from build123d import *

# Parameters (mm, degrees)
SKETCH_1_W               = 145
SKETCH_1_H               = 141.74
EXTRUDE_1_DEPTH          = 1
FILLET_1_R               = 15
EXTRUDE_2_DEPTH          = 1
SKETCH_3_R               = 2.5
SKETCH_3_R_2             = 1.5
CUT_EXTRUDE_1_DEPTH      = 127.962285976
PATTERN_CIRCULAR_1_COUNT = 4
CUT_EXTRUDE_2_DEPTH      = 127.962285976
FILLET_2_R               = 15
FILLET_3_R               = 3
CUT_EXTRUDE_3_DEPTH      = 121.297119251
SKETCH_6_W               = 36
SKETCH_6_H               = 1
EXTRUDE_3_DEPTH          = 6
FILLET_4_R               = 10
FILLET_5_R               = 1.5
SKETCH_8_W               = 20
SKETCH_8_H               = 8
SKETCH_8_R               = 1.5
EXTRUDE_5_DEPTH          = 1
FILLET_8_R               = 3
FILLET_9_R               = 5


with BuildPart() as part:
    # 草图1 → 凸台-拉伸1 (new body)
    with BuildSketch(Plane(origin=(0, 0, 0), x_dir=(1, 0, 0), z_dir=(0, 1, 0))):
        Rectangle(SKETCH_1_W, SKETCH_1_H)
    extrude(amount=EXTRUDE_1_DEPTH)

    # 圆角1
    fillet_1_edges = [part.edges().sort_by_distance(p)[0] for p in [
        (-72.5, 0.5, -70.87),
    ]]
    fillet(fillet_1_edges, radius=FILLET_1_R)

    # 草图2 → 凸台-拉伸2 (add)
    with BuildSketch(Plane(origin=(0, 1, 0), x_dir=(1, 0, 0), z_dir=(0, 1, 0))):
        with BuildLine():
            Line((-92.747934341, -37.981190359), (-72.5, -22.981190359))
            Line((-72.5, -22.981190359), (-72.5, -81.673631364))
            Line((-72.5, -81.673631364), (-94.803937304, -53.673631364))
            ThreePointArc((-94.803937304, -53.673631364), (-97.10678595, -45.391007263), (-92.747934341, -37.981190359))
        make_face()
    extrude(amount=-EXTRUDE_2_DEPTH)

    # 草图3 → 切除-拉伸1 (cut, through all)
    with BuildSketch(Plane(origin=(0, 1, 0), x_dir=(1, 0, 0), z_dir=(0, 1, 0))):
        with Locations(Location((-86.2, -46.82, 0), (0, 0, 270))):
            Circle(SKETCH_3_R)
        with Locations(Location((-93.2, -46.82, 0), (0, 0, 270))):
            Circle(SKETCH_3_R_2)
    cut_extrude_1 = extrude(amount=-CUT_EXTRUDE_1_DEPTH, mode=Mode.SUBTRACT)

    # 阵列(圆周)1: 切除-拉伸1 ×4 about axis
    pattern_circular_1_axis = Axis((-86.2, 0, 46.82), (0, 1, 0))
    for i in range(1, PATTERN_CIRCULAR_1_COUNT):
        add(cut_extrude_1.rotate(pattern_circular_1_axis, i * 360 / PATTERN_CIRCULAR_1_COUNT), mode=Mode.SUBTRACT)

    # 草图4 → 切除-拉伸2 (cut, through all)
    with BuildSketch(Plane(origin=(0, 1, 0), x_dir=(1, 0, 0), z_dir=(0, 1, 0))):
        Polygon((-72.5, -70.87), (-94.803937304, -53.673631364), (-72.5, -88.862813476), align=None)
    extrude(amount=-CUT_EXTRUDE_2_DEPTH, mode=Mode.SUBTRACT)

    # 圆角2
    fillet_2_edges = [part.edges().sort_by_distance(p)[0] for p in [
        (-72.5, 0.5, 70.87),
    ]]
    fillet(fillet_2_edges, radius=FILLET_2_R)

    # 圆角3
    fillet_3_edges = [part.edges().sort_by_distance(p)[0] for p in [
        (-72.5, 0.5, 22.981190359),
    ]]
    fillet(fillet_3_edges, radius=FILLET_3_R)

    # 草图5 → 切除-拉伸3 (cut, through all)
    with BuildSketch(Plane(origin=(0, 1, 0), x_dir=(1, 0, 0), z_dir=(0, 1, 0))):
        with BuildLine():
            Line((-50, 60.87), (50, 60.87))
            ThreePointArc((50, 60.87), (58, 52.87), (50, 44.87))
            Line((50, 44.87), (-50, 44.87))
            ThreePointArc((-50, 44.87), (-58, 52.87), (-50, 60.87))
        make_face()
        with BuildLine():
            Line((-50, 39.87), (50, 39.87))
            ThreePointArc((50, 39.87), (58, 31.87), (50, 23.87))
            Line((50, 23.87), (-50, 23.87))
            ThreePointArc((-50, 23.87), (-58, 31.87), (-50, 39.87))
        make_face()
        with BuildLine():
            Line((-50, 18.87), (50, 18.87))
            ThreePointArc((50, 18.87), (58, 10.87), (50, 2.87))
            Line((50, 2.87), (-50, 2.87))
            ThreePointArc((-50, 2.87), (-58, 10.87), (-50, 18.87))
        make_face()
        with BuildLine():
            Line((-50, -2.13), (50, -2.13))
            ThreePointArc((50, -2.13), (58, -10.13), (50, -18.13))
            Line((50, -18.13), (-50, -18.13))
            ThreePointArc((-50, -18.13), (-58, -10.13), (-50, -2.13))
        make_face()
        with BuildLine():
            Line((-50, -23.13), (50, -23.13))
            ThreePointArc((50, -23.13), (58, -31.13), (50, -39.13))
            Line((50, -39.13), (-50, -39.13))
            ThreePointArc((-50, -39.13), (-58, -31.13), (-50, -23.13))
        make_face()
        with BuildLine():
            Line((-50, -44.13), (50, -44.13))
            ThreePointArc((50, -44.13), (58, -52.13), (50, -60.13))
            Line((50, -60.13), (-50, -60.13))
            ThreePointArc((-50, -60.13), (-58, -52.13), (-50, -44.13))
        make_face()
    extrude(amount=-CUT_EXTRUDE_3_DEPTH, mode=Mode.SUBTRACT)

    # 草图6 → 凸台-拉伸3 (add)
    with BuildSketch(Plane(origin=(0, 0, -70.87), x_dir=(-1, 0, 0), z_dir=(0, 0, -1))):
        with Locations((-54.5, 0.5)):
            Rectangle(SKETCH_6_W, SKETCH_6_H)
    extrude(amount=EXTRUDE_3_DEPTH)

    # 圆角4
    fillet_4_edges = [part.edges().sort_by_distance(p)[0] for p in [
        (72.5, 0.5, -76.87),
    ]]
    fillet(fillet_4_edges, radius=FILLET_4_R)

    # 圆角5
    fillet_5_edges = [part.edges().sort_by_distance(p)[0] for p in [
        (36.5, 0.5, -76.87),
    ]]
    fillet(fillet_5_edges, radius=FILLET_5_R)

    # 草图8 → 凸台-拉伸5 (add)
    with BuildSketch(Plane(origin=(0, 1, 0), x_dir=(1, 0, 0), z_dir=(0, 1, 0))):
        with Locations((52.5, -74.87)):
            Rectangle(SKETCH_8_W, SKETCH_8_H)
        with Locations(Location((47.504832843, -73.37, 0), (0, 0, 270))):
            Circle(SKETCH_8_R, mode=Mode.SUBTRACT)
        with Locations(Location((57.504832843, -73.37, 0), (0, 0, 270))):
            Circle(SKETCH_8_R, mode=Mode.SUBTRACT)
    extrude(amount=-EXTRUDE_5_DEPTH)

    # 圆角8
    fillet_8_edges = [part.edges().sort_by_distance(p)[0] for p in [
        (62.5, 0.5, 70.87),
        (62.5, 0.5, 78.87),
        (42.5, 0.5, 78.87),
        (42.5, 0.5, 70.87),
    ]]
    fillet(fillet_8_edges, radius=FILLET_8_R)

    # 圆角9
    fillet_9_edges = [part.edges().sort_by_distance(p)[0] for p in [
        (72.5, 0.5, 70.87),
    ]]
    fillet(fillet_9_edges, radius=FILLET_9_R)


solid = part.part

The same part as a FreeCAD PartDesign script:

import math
import FreeCAD as App
import Part
import Sketcher
Q = App.Units.Quantity


def edges_at(feature, points):
    """Names of the edges that pass closest to the given points."""
    edges = feature.Shape.Edges
    near = lambda p: min(range(len(edges)), key=lambda i: edges[i].distToShape(Part.Vertex(*p))[0])
    return sorted({f"Edge{near(p) + 1}" for p in points})

doc = App.newDocument("Part")
body = doc.addObject("PartDesign::Body", "Body")

# Sketch on XZ plane
sketch1 = doc.addObject("Sketcher::SketchObject", "Sketch")
body.addObject(sketch1)
sketch1.AttachmentSupport = (doc.XZ_Plane, [""])
sketch1.MapMode = "FlatFace"
sketch1.addGeometry(Part.LineSegment(App.Vector(-72, -71, 0), App.Vector(-72, 71, 0)), False)
sketch1.addGeometry(Part.LineSegment(App.Vector(-72, 71, 0), App.Vector(72, 71, 0)), False)
sketch1.addGeometry(Part.LineSegment(App.Vector(72, 71, 0), App.Vector(72, -71, 0)), False)
sketch1.addGeometry(Part.LineSegment(App.Vector(72, -71, 0), App.Vector(-72, -71, 0)), False)
sketch1.addConstraint(Sketcher.Constraint("Coincident", 0, 2, 1, 1))
sketch1.addConstraint(Sketcher.Constraint("Coincident", 1, 2, 2, 1))
sketch1.addConstraint(Sketcher.Constraint("Coincident", 2, 2, 3, 1))
sketch1.addConstraint(Sketcher.Constraint("Coincident", 3, 2, 0, 1))
sketch1.addConstraint(Sketcher.Constraint("Vertical", 0))
sketch1.addConstraint(Sketcher.Constraint("Horizontal", 1))
sketch1.addConstraint(Sketcher.Constraint("Vertical", 2))
sketch1.addConstraint(Sketcher.Constraint("Horizontal", 3))
sketch1.addConstraint(Sketcher.Constraint("Symmetric", 0, 2, 2, 2, -1, 1))
sketch1.addConstraint(Sketcher.Constraint("DistanceX", 1, 1, 1, 2, Q("145 mm")))
sketch1.addConstraint(Sketcher.Constraint("DistanceY", 0, 1, 0, 2, Q("141.74 mm")))
pad1 = doc.addObject("PartDesign::Pad", "Pad")
body.addObject(pad1)
pad1.Profile = sketch1
pad1.Length = 1
pad1.Reversed = True
doc.recompute()

fillet = doc.addObject("PartDesign::Fillet", "Fillet")
body.addObject(fillet)
fillet.Base = (pad1, edges_at(pad1, [(-72.5, 0.5, -70.87)]))
fillet.Radius = 15

# Sketch on XZ plane
sketch2 = doc.addObject("Sketcher::SketchObject", "Sketch001")
body.addObject(sketch2)
sketch2.AttachmentSupport = (doc.XZ_Plane, [""])
sketch2.MapMode = "FlatFace"
sketch2.AttachmentOffset = App.Placement(App.Vector(0, 0, -1), App.Rotation())
sketch2.addGeometry(Part.LineSegment(App.Vector(-72, 23, 0), App.Vector(-93, 38, 0)), False)
sketch2.addGeometry(Part.ArcOfCircle(Part.Circle(App.Vector(-86, 47, 0), App.Vector(0, 0, 1), 11), math.radians(141), math.radians(233)), False)
sketch2.addGeometry(Part.LineSegment(App.Vector(-95, 54, 0), App.Vector(-72, 82, 0)), False)
sketch2.addGeometry(Part.LineSegment(App.Vector(-72, 82, 0), App.Vector(-72, 23, 0)), False)
sketch2.addConstraint(Sketcher.Constraint("Tangent", 0, 2, 1, 2))
sketch2.addConstraint(Sketcher.Constraint("Tangent", 1, 1, 2, 1))
sketch2.addConstraint(Sketcher.Constraint("Coincident", 2, 2, 3, 1))
sketch2.addConstraint(Sketcher.Constraint("Coincident", 3, 2, 0, 1))
sketch2.addConstraint(Sketcher.Constraint("Vertical", 3))
sketch2.addConstraint(Sketcher.Constraint("Radius", 1, Q("11 mm")))
sketch2.addConstraint(Sketcher.Constraint("DistanceY", 1, 1, 2, 2, Q("28 mm")))
sketch2.addConstraint(Sketcher.Constraint("DistanceY", 3, 2, 0, 2, Q("15 mm")))
sketch2.addConstraint(Sketcher.Constraint("DistanceX", 1, 3, -1, 1, Q("86.2 mm")))
sketch2.addConstraint(Sketcher.Constraint("DistanceX", 2, 2, -1, 1, Q("72.5 mm")))
sketch2.addConstraint(Sketcher.Constraint("DistanceY", -1, 1, 1, 3, Q("46.82 mm")))
pad2 = doc.addObject("PartDesign::Pad", "Pad001")
body.addObject(pad2)
pad2.Profile = sketch2
pad2.Length = 1

# Sketch on XZ plane
sketch3 = doc.addObject("Sketcher::SketchObject", "Sketch002")
body.addObject(sketch3)
sketch3.AttachmentSupport = (doc.XZ_Plane, [""])
sketch3.MapMode = "FlatFace"
sketch3.AttachmentOffset = App.Placement(App.Vector(0, 0, -1), App.Rotation())
sketch3.addGeometry(Part.Circle(App.Vector(-86.2, 46.8, 0), App.Vector(0, 0, 1), 2.5), False)
sketch3.addGeometry(Part.Circle(App.Vector(-93.2, 46.8, 0), App.Vector(0, 0, 1), 1.5), False)
sketch3.addConstraint(Sketcher.Constraint("Horizontal", 0, 3, 1, 3))
sketch3.addConstraint(Sketcher.Constraint("Diameter", 0, Q("5 mm")))
sketch3.addConstraint(Sketcher.Constraint("Diameter", 1, Q("3 mm")))
sketch3.addConstraint(Sketcher.Constraint("DistanceX", 1, 3, 0, 3, Q("7 mm")))
sketch3.addConstraint(Sketcher.Constraint("DistanceX", 0, 3, -1, 1, Q("86.2 mm")))
sketch3.addConstraint(Sketcher.Constraint("DistanceY", -1, 1, 0, 3, Q("46.82 mm")))
pocket1 = doc.addObject("PartDesign::Pocket", "Pocket")
body.addObject(pocket1)
pocket1.Profile = sketch3
pocket1.Type = "ThroughAll"
pocket1.Reversed = True
doc.recompute()

datumline = doc.addObject("PartDesign::Line", "DatumLine")
body.addObject(datumline)
datumline.Placement = App.Placement(App.Vector(-86.2, 0, 46.82), App.Rotation(App.Vector(0, 0, 1), App.Vector(0, 1, 0)))
polarpattern = doc.addObject("PartDesign::PolarPattern", "PolarPattern")
body.addObject(polarpattern)
polarpattern.Originals = [pocket1]
polarpattern.Axis = (datumline, [""])
polarpattern.Angle = 360
polarpattern.Occurrences = 4
body.Tip = polarpattern

# Sketch on XZ plane
sketch4 = doc.addObject("Sketcher::SketchObject", "Sketch003")
body.addObject(sketch4)
sketch4.AttachmentSupport = (doc.XZ_Plane, [""])
sketch4.MapMode = "FlatFace"
sketch4.AttachmentOffset = App.Placement(App.Vector(0, 0, -1), App.Rotation())
sketch4.addGeometry(Part.LineSegment(App.Vector(-72, 71, 0), App.Vector(-95, 54, 0)), False)
sketch4.addGeometry(Part.LineSegment(App.Vector(-95, 54, 0), App.Vector(-72, 89, 0)), False)
sketch4.addGeometry(Part.LineSegment(App.Vector(-72, 89, 0), App.Vector(-72, 71, 0)), False)
sketch4.addConstraint(Sketcher.Constraint("Coincident", 0, 2, 1, 1))
sketch4.addConstraint(Sketcher.Constraint("Coincident", 1, 2, 2, 1))
sketch4.addConstraint(Sketcher.Constraint("Coincident", 2, 2, 0, 1))
sketch4.addConstraint(Sketcher.Constraint("Vertical", 2))
sketch4.addConstraint(Sketcher.Constraint("DistanceX", 1, 2, -1, 1, Q("72.5 mm")))
sketch4.addConstraint(Sketcher.Constraint("DistanceY", -1, 1, 2, 2, Q("70.87 mm")))
sketch4.addConstraint(Sketcher.Constraint("DistanceY", 2, 2, 2, 1, Q("17.992813 mm")))
sketch4.addConstraint(Sketcher.Constraint("DistanceY", -1, 1, 0, 2, Q("53.673631 mm")))
sketch4.addConstraint(Sketcher.Constraint("Distance", 0, Q("28.163464 mm")))
pocket2 = doc.addObject("PartDesign::Pocket", "Pocket001")
body.addObject(pocket2)
pocket2.Profile = sketch4
pocket2.Type = "ThroughAll"
pocket2.Reversed = True
doc.recompute()

fillet2 = doc.addObject("PartDesign::Fillet", "Fillet001")
body.addObject(fillet2)
fillet2.Base = (pocket2, edges_at(pocket2, [(-72.5, 0.5, 70.87)]))
fillet2.Radius = 15
doc.recompute()

fillet3 = doc.addObject("PartDesign::Fillet", "Fillet002")
body.addObject(fillet3)
fillet3.Base = (fillet2, edges_at(fillet2, [(-72.5, 0.5, 22.981)]))
fillet3.Radius = 3

# Sketch on XZ plane
sketch5 = doc.addObject("Sketcher::SketchObject", "Sketch004")
body.addObject(sketch5)
sketch5.AttachmentSupport = (doc.XZ_Plane, [""])
sketch5.MapMode = "FlatFace"
sketch5.AttachmentOffset = App.Placement(App.Vector(0, 0, -1), App.Rotation())
sketch5.addGeometry(Part.LineSegment(App.Vector(50, -61, 0), App.Vector(-50, -61, 0)), False)
sketch5.addGeometry(Part.ArcOfCircle(Part.Circle(App.Vector(-50, -53, 0), App.Vector(0, 0, 1), 8), math.radians(90), math.radians(270)), False)
sketch5.addGeometry(Part.LineSegment(App.Vector(-50, -45, 0), App.Vector(50, -45, 0)), False)
sketch5.addGeometry(Part.ArcOfCircle(Part.Circle(App.Vector(50, -53, 0), App.Vector(0, 0, 1), 8), math.radians(-90), math.radians(90)), False)
sketch5.addGeometry(Part.LineSegment(App.Vector(50, -40, 0), App.Vector(-50, -40, 0)), False)
sketch5.addGeometry(Part.ArcOfCircle(Part.Circle(App.Vector(-50, -32, 0), App.Vector(0, 0, 1), 8), math.radians(90), math.radians(270)), False)
sketch5.addGeometry(Part.LineSegment(App.Vector(-50, -24, 0), App.Vector(50, -24, 0)), False)
sketch5.addGeometry(Part.ArcOfCircle(Part.Circle(App.Vector(50, -32, 0), App.Vector(0, 0, 1), 8), math.radians(-90), math.radians(90)), False)
sketch5.addGeometry(Part.LineSegment(App.Vector(50, -19, 0), App.Vector(-50, -19, 0)), False)
sketch5.addGeometry(Part.ArcOfCircle(Part.Circle(App.Vector(-50, -11, 0), App.Vector(0, 0, 1), 8), math.radians(90), math.radians(270)), False)
sketch5.addGeometry(Part.LineSegment(App.Vector(-50, -3, 0), App.Vector(50, -3, 0)), False)
sketch5.addGeometry(Part.ArcOfCircle(Part.Circle(App.Vector(50, -11, 0), App.Vector(0, 0, 1), 8), math.radians(-90), math.radians(90)), False)
sketch5.addGeometry(Part.LineSegment(App.Vector(50, 2, 0), App.Vector(-50, 2, 0)), False)
sketch5.addGeometry(Part.ArcOfCircle(Part.Circle(App.Vector(-50, 10, 0), App.Vector(0, 0, 1), 8), math.radians(90), math.radians(270)), False)
sketch5.addGeometry(Part.LineSegment(App.Vector(-50, 18, 0), App.Vector(50, 18, 0)), False)
sketch5.addGeometry(Part.ArcOfCircle(Part.Circle(App.Vector(50, 10, 0), App.Vector(0, 0, 1), 8), math.radians(-90), math.radians(90)), False)
sketch5.addGeometry(Part.LineSegment(App.Vector(50, 23, 0), App.Vector(-50, 23, 0)), False)
sketch5.addGeometry(Part.ArcOfCircle(Part.Circle(App.Vector(-50, 31, 0), App.Vector(0, 0, 1), 8), math.radians(90), math.radians(270)), False)
sketch5.addGeometry(Part.LineSegment(App.Vector(-50, 39, 0), App.Vector(50, 39, 0)), False)
sketch5.addGeometry(Part.ArcOfCircle(Part.Circle(App.Vector(50, 31, 0), App.Vector(0, 0, 1), 8), math.radians(-90), math.radians(90)), False)
sketch5.addGeometry(Part.LineSegment(App.Vector(50, 44, 0), App.Vector(-50, 44, 0)), False)
sketch5.addGeometry(Part.ArcOfCircle(Part.Circle(App.Vector(-50, 52, 0), App.Vector(0, 0, 1), 8), math.radians(90), math.radians(270)), False)
sketch5.addGeometry(Part.LineSegment(App.Vector(-50, 60, 0), App.Vector(50, 60, 0)), False)
sketch5.addGeometry(Part.ArcOfCircle(Part.Circle(App.Vector(50, 52, 0), App.Vector(0, 0, 1), 8), math.radians(-90), math.radians(90)), False)
sketch5.addConstraint(Sketcher.Constraint("Tangent", 0, 2, 1, 2))
sketch5.addConstraint(Sketcher.Constraint("Tangent", 1, 1, 2, 1))
sketch5.addConstraint(Sketcher.Constraint("Tangent", 2, 2, 3, 2))
sketch5.addConstraint(Sketcher.Constraint("Tangent", 3, 1, 0, 1))
sketch5.addConstraint(Sketcher.Constraint("Tangent", 4, 2, 5, 2))
sketch5.addConstraint(Sketcher.Constraint("Tangent", 5, 1, 6, 1))
sketch5.addConstraint(Sketcher.Constraint("Tangent", 6, 2, 7, 2))
sketch5.addConstraint(Sketcher.Constraint("Tangent", 7, 1, 4, 1))
sketch5.addConstraint(Sketcher.Constraint("Tangent", 8, 2, 9, 2))
sketch5.addConstraint(Sketcher.Constraint("Tangent", 9, 1, 10, 1))
sketch5.addConstraint(Sketcher.Constraint("Tangent", 10, 2, 11, 2))
sketch5.addConstraint(Sketcher.Constraint("Tangent", 11, 1, 8, 1))
sketch5.addConstraint(Sketcher.Constraint("Tangent", 12, 2, 13, 2))
sketch5.addConstraint(Sketcher.Constraint("Tangent", 13, 1, 14, 1))
sketch5.addConstraint(Sketcher.Constraint("Tangent", 14, 2, 15, 2))
sketch5.addConstraint(Sketcher.Constraint("Tangent", 15, 1, 12, 1))
sketch5.addConstraint(Sketcher.Constraint("Tangent", 16, 2, 17, 2))
sketch5.addConstraint(Sketcher.Constraint("Tangent", 17, 1, 18, 1))
sketch5.addConstraint(Sketcher.Constraint("Tangent", 18, 2, 19, 2))
sketch5.addConstraint(Sketcher.Constraint("Tangent", 19, 1, 16, 1))
sketch5.addConstraint(Sketcher.Constraint("Tangent", 20, 2, 21, 2))
sketch5.addConstraint(Sketcher.Constraint("Tangent", 21, 1, 22, 1))
sketch5.addConstraint(Sketcher.Constraint("Tangent", 22, 2, 23, 2))
sketch5.addConstraint(Sketcher.Constraint("Tangent", 23, 1, 20, 1))
sketch5.addConstraint(Sketcher.Constraint("Horizontal", 0))
sketch5.addConstraint(Sketcher.Constraint("Horizontal", 2))
sketch5.addConstraint(Sketcher.Constraint("Horizontal", 4))
sketch5.addConstraint(Sketcher.Constraint("Horizontal", 6))
sketch5.addConstraint(Sketcher.Constraint("Horizontal", 8))
sketch5.addConstraint(Sketcher.Constraint("Horizontal", 10))
sketch5.addConstraint(Sketcher.Constraint("Horizontal", 12))
sketch5.addConstraint(Sketcher.Constraint("Horizontal", 14))
sketch5.addConstraint(Sketcher.Constraint("Horizontal", 16))
sketch5.addConstraint(Sketcher.Constraint("Horizontal", 18))
sketch5.addConstraint(Sketcher.Constraint("Horizontal", 20))
sketch5.addConstraint(Sketcher.Constraint("Horizontal", 22))
sketch5.addConstraint(Sketcher.Constraint("Equal", 3, 5))
sketch5.addConstraint(Sketcher.Constraint("Equal", 7, 9))
sketch5.addConstraint(Sketcher.Constraint("Equal", 11, 13))
sketch5.addConstraint(Sketcher.Constraint("Equal", 15, 17))
sketch5.addConstraint(Sketcher.Constraint("Equal", 19, 21))
sketch5.addConstraint(Sketcher.Constraint("Vertical", 1, 3, 5, 3))
sketch5.addConstraint(Sketcher.Constraint("Vertical", 3, 3, 7, 3))
sketch5.addConstraint(Sketcher.Constraint("Vertical", 5, 3, 9, 3))
sketch5.addConstraint(Sketcher.Constraint("Vertical", 7, 3, 11, 3))
sketch5.addConstraint(Sketcher.Constraint("Vertical", 9, 3, 13, 3))
sketch5.addConstraint(Sketcher.Constraint("Vertical", 11, 3, 15, 3))
sketch5.addConstraint(Sketcher.Constraint("Vertical", 13, 3, 17, 3))
sketch5.addConstraint(Sketcher.Constraint("Vertical", 15, 3, 19, 3))
sketch5.addConstraint(Sketcher.Constraint("Vertical", 17, 3, 21, 3))
sketch5.addConstraint(Sketcher.Constraint("Vertical", 19, 3, 23, 3))
sketch5.addConstraint(Sketcher.Constraint("Radius", 1, Q("8 mm")))
sketch5.addConstraint(Sketcher.Constraint("DistanceX", 0, 2, 0, 1, Q("100 mm")))
sketch5.addConstraint(Sketcher.Constraint("DistanceX", 1, 3, -1, 1, Q("50 mm")))
sketch5.addConstraint(Sketcher.Constraint("DistanceY", 1, 3, 5, 3, Q("21 mm")))
sketch5.addConstraint(Sketcher.Constraint("DistanceY", 5, 3, 9, 3, Q("21 mm")))
sketch5.addConstraint(Sketcher.Constraint("DistanceY", 9, 3, 13, 3, Q("21 mm")))
sketch5.addConstraint(Sketcher.Constraint("DistanceY", 13, 3, 17, 3, Q("21 mm")))
sketch5.addConstraint(Sketcher.Constraint("DistanceY", 17, 3, 21, 3, Q("21 mm")))
sketch5.addConstraint(Sketcher.Constraint("DistanceY", 1, 3, -1, 1, Q("52.87 mm")))
pocket3 = doc.addObject("PartDesign::Pocket", "Pocket002")
body.addObject(pocket3)
pocket3.Profile = sketch5
pocket3.Type = "ThroughAll"
pocket3.Reversed = True

# Sketch on XY plane
sketch6 = doc.addObject("Sketcher::SketchObject", "Sketch005")
body.addObject(sketch6)
sketch6.AttachmentSupport = (doc.XY_Plane, [""])
sketch6.MapMode = "FlatFace"
sketch6.AttachmentOffset = App.Placement(App.Vector(0, 0, -70.87), App.Rotation())
sketch6.addGeometry(Part.LineSegment(App.Vector(72.5, 1, 0), App.Vector(72.5, 0, 0)), False)
sketch6.addGeometry(Part.LineSegment(App.Vector(72.5, 0, 0), App.Vector(36.5, 0, 0)), False)
sketch6.addGeometry(Part.LineSegment(App.Vector(36.5, 0, 0), App.Vector(36.5, 1, 0)), False)
sketch6.addGeometry(Part.LineSegment(App.Vector(36.5, 1, 0), App.Vector(72.5, 1, 0)), False)
sketch6.addConstraint(Sketcher.Constraint("Coincident", 0, 2, 1, 1))
sketch6.addConstraint(Sketcher.Constraint("Coincident", 1, 2, 2, 1))
sketch6.addConstraint(Sketcher.Constraint("Coincident", 2, 2, 3, 1))
sketch6.addConstraint(Sketcher.Constraint("Coincident", 3, 2, 0, 1))
sketch6.addConstraint(Sketcher.Constraint("Vertical", 0))
sketch6.addConstraint(Sketcher.Constraint("Horizontal", 1))
sketch6.addConstraint(Sketcher.Constraint("Vertical", 2))
sketch6.addConstraint(Sketcher.Constraint("Horizontal", 3))
sketch6.addConstraint(Sketcher.Constraint("PointOnObject", 0, 2, -1))
sketch6.addConstraint(Sketcher.Constraint("DistanceX", 1, 2, 1, 1, Q("36 mm")))
sketch6.addConstraint(Sketcher.Constraint("DistanceY", 0, 2, 0, 1, Q("1 mm")))
sketch6.addConstraint(Sketcher.Constraint("DistanceX", -1, 1, 0, 2, Q("72.5 mm")))
pad3 = doc.addObject("PartDesign::Pad", "Pad002")
body.addObject(pad3)
pad3.Profile = sketch6
pad3.Length = 6
pad3.Reversed = True
doc.recompute()

fillet4 = doc.addObject("PartDesign::Fillet", "Fillet003")
body.addObject(fillet4)
fillet4.Base = (pad3, edges_at(pad3, [(72.5, 0.5, -76.87)]))
fillet4.Radius = 10
doc.recompute()

fillet5 = doc.addObject("PartDesign::Fillet", "Fillet004")
body.addObject(fillet5)
fillet5.Base = (fillet4, edges_at(fillet4, [(36.5, 0.5, -76.87)]))
fillet5.Radius = 1.5

# Sketch on XZ plane
sketch7 = doc.addObject("Sketcher::SketchObject", "Sketch006")
body.addObject(sketch7)
sketch7.AttachmentSupport = (doc.XZ_Plane, [""])
sketch7.MapMode = "FlatFace"
sketch7.AttachmentOffset = App.Placement(App.Vector(0, 0, -1), App.Rotation())
sketch7.addGeometry(Part.LineSegment(App.Vector(42.5, 70.9, 0), App.Vector(42.5, 78.9, 0)), False)
sketch7.addGeometry(Part.LineSegment(App.Vector(42.5, 78.9, 0), App.Vector(62.5, 78.9, 0)), False)
sketch7.addGeometry(Part.LineSegment(App.Vector(62.5, 78.9, 0), App.Vector(62.5, 70.9, 0)), False)
sketch7.addGeometry(Part.LineSegment(App.Vector(62.5, 70.9, 0), App.Vector(42.5, 70.9, 0)), False)
sketch7.addGeometry(Part.Circle(App.Vector(47.5, 73.4, 0), App.Vector(0, 0, 1), 1.5), False)
sketch7.addGeometry(Part.Circle(App.Vector(57.5, 73.4, 0), App.Vector(0, 0, 1), 1.5), False)
sketch7.addConstraint(Sketcher.Constraint("Coincident", 0, 2, 1, 1))
sketch7.addConstraint(Sketcher.Constraint("Coincident", 1, 2, 2, 1))
sketch7.addConstraint(Sketcher.Constraint("Coincident", 2, 2, 3, 1))
sketch7.addConstraint(Sketcher.Constraint("Coincident", 3, 2, 0, 1))
sketch7.addConstraint(Sketcher.Constraint("Vertical", 0))
sketch7.addConstraint(Sketcher.Constraint("Horizontal", 1))
sketch7.addConstraint(Sketcher.Constraint("Vertical", 2))
sketch7.addConstraint(Sketcher.Constraint("Horizontal", 3))
sketch7.addConstraint(Sketcher.Constraint("Equal", 4, 5))
sketch7.addConstraint(Sketcher.Constraint("Horizontal", 4, 3, 5, 3))
sketch7.addConstraint(Sketcher.Constraint("Diameter", 4, Q("3 mm")))
sketch7.addConstraint(Sketcher.Constraint("DistanceX", 1, 1, 1, 2, Q("20 mm")))
sketch7.addConstraint(Sketcher.Constraint("DistanceY", 0, 1, 0, 2, Q("8 mm")))
sketch7.addConstraint(Sketcher.Constraint("DistanceX", 4, 3, 5, 3, Q("10 mm")))
sketch7.addConstraint(Sketcher.Constraint("DistanceX", -1, 1, 0, 2, Q("42.5 mm")))
sketch7.addConstraint(Sketcher.Constraint("DistanceY", 4, 3, 0, 2, Q("5.5 mm")))
sketch7.addConstraint(Sketcher.Constraint("DistanceY", -1, 1, 4, 3, Q("73.37 mm")))
sketch7.addConstraint(Sketcher.Constraint("DistanceX", -1, 1, 4, 3, Q("47.504833 mm")))
pad4 = doc.addObject("PartDesign::Pad", "Pad003")
body.addObject(pad4)
pad4.Profile = sketch7
pad4.Length = 1
doc.recompute()

fillet6 = doc.addObject("PartDesign::Fillet", "Fillet005")
body.addObject(fillet6)
fillet6.Base = (pad4, edges_at(pad4, [
    (62.5, 0.5, 70.87),
    (62.5, 0.5, 78.87),
    (42.5, 0.5, 78.87),
    (42.5, 0.5, 70.87),
]))
fillet6.Radius = 3
doc.recompute()

fillet7 = doc.addObject("PartDesign::Fillet", "Fillet006")
body.addObject(fillet7)
fillet7.Base = (fillet6, edges_at(fillet6, [(72.5, 0.5, 70.87)]))
fillet7.Radius = 5

doc.recompute()
